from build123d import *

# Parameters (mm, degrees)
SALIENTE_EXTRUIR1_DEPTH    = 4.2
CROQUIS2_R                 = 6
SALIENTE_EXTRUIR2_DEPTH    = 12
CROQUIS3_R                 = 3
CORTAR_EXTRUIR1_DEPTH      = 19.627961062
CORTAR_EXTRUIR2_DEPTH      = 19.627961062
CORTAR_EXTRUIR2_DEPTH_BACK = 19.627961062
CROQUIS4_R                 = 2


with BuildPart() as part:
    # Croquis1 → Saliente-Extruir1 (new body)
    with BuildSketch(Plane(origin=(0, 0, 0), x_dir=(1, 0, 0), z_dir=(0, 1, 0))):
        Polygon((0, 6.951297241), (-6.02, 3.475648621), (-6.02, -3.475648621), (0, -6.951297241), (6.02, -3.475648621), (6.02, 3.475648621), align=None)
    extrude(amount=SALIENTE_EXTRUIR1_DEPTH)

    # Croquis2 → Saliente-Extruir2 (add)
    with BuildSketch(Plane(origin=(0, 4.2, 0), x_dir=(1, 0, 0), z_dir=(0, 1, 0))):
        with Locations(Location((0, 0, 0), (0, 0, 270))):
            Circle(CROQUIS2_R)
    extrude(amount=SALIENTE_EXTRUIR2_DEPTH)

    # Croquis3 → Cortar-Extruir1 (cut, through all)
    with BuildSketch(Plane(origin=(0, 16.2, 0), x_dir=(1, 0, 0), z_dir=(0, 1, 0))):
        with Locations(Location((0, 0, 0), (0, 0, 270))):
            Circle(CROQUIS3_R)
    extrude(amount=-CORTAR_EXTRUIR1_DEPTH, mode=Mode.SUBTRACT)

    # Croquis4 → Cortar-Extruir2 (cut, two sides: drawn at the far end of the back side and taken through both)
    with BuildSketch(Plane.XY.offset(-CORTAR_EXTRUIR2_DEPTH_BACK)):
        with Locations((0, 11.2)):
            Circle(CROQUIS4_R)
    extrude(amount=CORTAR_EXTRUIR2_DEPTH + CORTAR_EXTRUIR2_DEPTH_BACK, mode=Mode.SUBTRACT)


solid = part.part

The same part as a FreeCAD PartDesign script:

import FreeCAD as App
import Part
import Sketcher
Q = App.Units.Quantity

doc = App.newDocument("Part")
params = doc.addObject("Spreadsheet::Sheet", "Params")
for row, (alias, value) in enumerate([
    ("pad1_length", "4.2 mm"),
    ("sketch2_diameter", "12 mm"),
    ("pad2_length", "12 mm"),
    ("sketch3_diameter", "6 mm"),
    ("sketch4_diameter", "4 mm"),
], start=1):
    params.set(f"A{row}", alias)
    params.set(f"B{row}", "=" + value)
    params.setAlias(f"B{row}", alias)

body = doc.addObject("PartDesign::Body", "Body")

sketch1 = body.newObject("Sketcher::SketchObject", "Sketch")
sketch1.AttachmentSupport = (doc.getObject("XZ_Plane"), [""])
sketch1.MapMode = "FlatFace"
sketch1.addGeometry([
    Part.LineSegment(App.Vector(0, -7, 0), App.Vector(-6, -3, 0)),
    Part.LineSegment(App.Vector(-6, -3, 0), App.Vector(-6, 3, 0)),
    Part.LineSegment(App.Vector(-6, 3, 0), App.Vector(0, 7, 0)),
    Part.LineSegment(App.Vector(0, 7, 0), App.Vector(6, 3, 0)),
    Part.LineSegment(App.Vector(6, 3, 0), App.Vector(6, -3, 0)),
    Part.LineSegment(App.Vector(6, -3, 0), App.Vector(0, -7, 0)),
], False)
sketch1.addConstraint([
    Sketcher.Constraint("Coincident", 0, 2, 1, 1),
    Sketcher.Constraint("Coincident", 1, 2, 2, 1),
    Sketcher.Constraint("Coincident", 2, 2, 3, 1),
    Sketcher.Constraint("Coincident", 3, 2, 4, 1),
    Sketcher.Constraint("Coincident", 4, 2, 5, 1),
    Sketcher.Constraint("Coincident", 5, 2, 0, 1),
    Sketcher.Constraint("Vertical", 1),
    Sketcher.Constraint("Vertical", 4),
    Sketcher.Constraint("Symmetric", 0, 2, 3, 2, -1, 1),
    Sketcher.Constraint("Symmetric", 2, 2, 5, 2, -1, 1),
    Sketcher.Constraint("PointOnObject", 2, 2, -2),
    Sketcher.Constraint("Parallel", 2, 5),
    Sketcher.Constraint("Horizontal", 1, 2, 3, 2),
    Sketcher.Constraint("Angle", 0, Q("150 deg")),
    Sketcher.Constraint("DistanceX", 0, 2, -1, 1, Q("6.02 mm")),
    Sketcher.Constraint("DistanceY", 1, 1, 1, 2, Q("6.951297 mm")),
])
pad1 = body.newObject("PartDesign::Pad", "Pad")
pad1.Profile = sketch1
pad1.setExpression("Length", "Params.pad1_length")
pad1.Reversed = True

sketch2 = body.newObject("Sketcher::SketchObject", "Sketch001")
sketch2.AttachmentSupport = (doc.getObject("XZ_Plane"), [""])
sketch2.MapMode = "FlatFace"
sketch2.AttachmentOffset = App.Placement(App.Vector(0, 0, -4.2), App.Rotation())
sketch2.addGeometry(Part.Circle(App.Vector(0, 0, 0), App.Vector(0, 0, 1), 6), False)
sketch2.addConstraint([
    Sketcher.Constraint("Coincident", 0, 3, -1, 1),
    Sketcher.Constraint("Diameter", 0, Q("12 mm")),
])
sketch2.setExpression("Constraints[1]", "Params.sketch2_diameter")
pad2 = body.newObject("PartDesign::Pad", "Pad001")
pad2.Profile = sketch2
pad2.setExpression("Length", "Params.pad2_length")
pad2.Reversed = True

sketch3 = body.newObject("Sketcher::SketchObject", "Sketch002")
sketch3.AttachmentSupport = (doc.getObject("XZ_Plane"), [""])
sketch3.MapMode = "FlatFace"
sketch3.AttachmentOffset = App.Placement(App.Vector(0, 0, -16.2), App.Rotation())
sketch3.addGeometry(Part.Circle(App.Vector(0, 0, 0), App.Vector(0, 0, 1), 3), False)
sketch3.addConstraint([
    Sketcher.Constraint("Coincident", 0, 3, -1, 1),
    Sketcher.Constraint("Diameter", 0, Q("6 mm")),
])
sketch3.setExpression("Constraints[1]", "Params.sketch3_diameter")
pocket1 = body.newObject("PartDesign::Pocket", "Pocket")
pocket1.Profile = sketch3
pocket1.Type = "ThroughAll"
pocket1.Reversed = True

sketch4 = body.newObject("Sketcher::SketchObject", "Sketch003")
sketch4.AttachmentSupport = (doc.getObject("XY_Plane"), [""])
sketch4.MapMode = "FlatFace"
sketch4.addGeometry(Part.Circle(App.Vector(0, 11.2, 0), App.Vector(0, 0, 1), 2), False)
sketch4.addConstraint([
    Sketcher.Constraint("PointOnObject", 0, 3, -2),
    Sketcher.Constraint("Diameter", 0, Q("4 mm")),
    Sketcher.Constraint("DistanceY", -1, 1, 0, 3, Q("11.2 mm")),
])
sketch4.setExpression("Constraints[1]", "Params.sketch4_diameter")
pocket2 = body.newObject("PartDesign::Pocket", "Pocket001")
pocket2.Profile = sketch4
pocket2.Type = "ThroughAll"
pocket2.Midplane = True

doc.recompute()
